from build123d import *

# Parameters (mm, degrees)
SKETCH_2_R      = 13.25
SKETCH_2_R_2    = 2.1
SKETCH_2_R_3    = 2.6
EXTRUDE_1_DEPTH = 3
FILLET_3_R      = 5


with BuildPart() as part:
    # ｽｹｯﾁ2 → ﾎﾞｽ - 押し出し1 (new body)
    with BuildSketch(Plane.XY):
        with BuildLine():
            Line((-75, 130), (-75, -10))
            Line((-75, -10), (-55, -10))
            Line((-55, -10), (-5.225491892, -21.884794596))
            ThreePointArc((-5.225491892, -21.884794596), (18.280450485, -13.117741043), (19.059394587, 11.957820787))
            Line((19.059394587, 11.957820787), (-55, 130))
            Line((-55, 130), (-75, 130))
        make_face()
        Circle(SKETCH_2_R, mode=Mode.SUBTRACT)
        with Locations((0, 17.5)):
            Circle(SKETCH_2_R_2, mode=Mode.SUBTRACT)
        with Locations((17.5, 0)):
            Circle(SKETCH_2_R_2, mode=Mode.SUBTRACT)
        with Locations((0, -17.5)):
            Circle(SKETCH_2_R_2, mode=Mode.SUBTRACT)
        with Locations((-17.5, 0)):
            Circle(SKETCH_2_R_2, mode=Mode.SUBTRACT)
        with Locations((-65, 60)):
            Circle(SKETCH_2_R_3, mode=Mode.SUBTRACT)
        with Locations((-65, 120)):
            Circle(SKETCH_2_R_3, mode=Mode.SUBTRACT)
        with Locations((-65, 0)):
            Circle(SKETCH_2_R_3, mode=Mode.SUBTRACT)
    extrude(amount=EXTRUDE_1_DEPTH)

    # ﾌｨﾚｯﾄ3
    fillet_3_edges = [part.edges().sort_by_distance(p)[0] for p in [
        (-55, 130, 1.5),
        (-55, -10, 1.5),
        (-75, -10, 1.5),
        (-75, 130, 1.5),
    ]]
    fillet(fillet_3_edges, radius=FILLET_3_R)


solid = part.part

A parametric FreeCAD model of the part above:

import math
import FreeCAD as App
import Part
import Sketcher

V = App.Vector


def edges_at(feature, points):
    """Names of the edges that pass closest to the given points."""
    edges = feature.Shape.Edges
    near = lambda p: min(range(len(edges)), key=lambda i: edges[i].distToShape(Part.Vertex(*p))[0])
    return sorted({f"Edge{near(p) + 1}" for p in points})

doc = App.newDocument("Part")
body = doc.addObject("PartDesign::Body", "Body")

# Sketch on XY plane
sketch1 = body.newObject("Sketcher::SketchObject", "Sketch")
sketch1.AttachmentSupport = (doc.getObject("XY_Plane"), [""])
sketch1.MapMode = "FlatFace"
sketch1.addGeometry([
    Part.LineSegment(V(-75, 130, 0), V(-75, -10, 0)),  # 0
    Part.LineSegment(V(-75, -10, 0), V(-55, -10, 0)),  # 1
    Part.LineSegment(V(-55, -10, 0), V(-5.225492, -21.884795, 0)),  # 2
    Part.ArcOfCircle(Part.Circle(V(0, 0, 0), V(0, 0, 1), 22.5), math.radians(-103.429226), math.radians(32.104066)),  # 3
    Part.LineSegment(V(19.059395, 11.957821, 0), V(-55, 130, 0)),  # 4
    Part.LineSegment(V(-55, 130, 0), V(-75, 130, 0)),  # 5
    Part.Circle(V(-65, 0, 0), V(0, 0, 1), 2.6),  # 6
    Part.Circle(V(-17.5, 0, 0), V(0, 0, 1), 2.1),  # 7
    Part.Circle(V(0, -17.5, 0), V(0, 0, 1), 2.1),  # 8
    Part.Circle(V(0, 0, 0), V(0, 0, 1), 13.25),  # 9
    Part.Circle(V(17.5, 0, 0), V(0, 0, 1), 2.1),  # 10
    Part.Circle(V(0, 17.5, 0), V(0, 0, 1), 2.1),  # 11
    Part.Circle(V(-65, 60, 0), V(0, 0, 1), 2.6),  # 12
    Part.Circle(V(-65, 120, 0), V(0, 0, 1), 2.6),  # 13
], False)
sketch1.addConstraint([
    Sketcher.Constraint("Coincident", 0, 2, 1, 1),
    Sketcher.Constraint("Coincident", 1, 2, 2, 1),
    Sketcher.Constraint("Tangent", 2, 2, 3, 1),
    Sketcher.Constraint("Tangent", 3, 2, 4, 1),
    Sketcher.Constraint("Coincident", 4, 2, 5, 1),
    Sketcher.Constraint("Coincident", 5, 2, 0, 1),
    Sketcher.Constraint("Vertical", 0),
    Sketcher.Constraint("Horizontal", 1),
    Sketcher.Constraint("Horizontal", 5),
    Sketcher.Constraint("Coincident", 3, 3, -1, 1),
    Sketcher.Constraint("Coincident", 9, 3, -1, 1),
    Sketcher.Constraint("Equal", 7, 8),
    Sketcher.Constraint("Equal", 8, 10),
    Sketcher.Constraint("Equal", 10, 11),
    Sketcher.Constraint("Equal", 6, 12),
    Sketcher.Constraint("Equal", 12, 13),
    Sketcher.Constraint("Symmetric", 7, 3, 10, 3, -1, 1),
    Sketcher.Constraint("Symmetric", 8, 3, 11, 3, -1, 1),
    Sketcher.Constraint("PointOnObject", 6, 3, -1),
    Sketcher.Constraint("PointOnObject", 7, 3, -1),
    Sketcher.Constraint("PointOnObject", 8, 3, -2),
    Sketcher.Constraint("Vertical", 6, 3, 12, 3),
    Sketcher.Constraint("Vertical", 12, 3, 13, 3),
    Sketcher.Constraint("Vertical", 1, 2, 4, 2),
    Sketcher.Constraint("Diameter", 6, 5.2),
    Sketcher.Constraint("Diameter", 7, 4.2),
    Sketcher.Constraint("Diameter", 9, 26.5),
    Sketcher.Constraint("Radius", 3, 22.5),
    Sketcher.Constraint("DistanceX", 1, 1, 1, 2, 20.0),
    Sketcher.Constraint("DistanceY", 0, 2, 0, 1, 140.0),
    Sketcher.Constraint("DistanceX", 6, 3, -1, 1, 65.0),
    Sketcher.Constraint("DistanceY", -1, 1, 12, 3, 60.0),
    Sketcher.Constraint("DistanceY", -1, 1, 13, 3, 120.0),
    Sketcher.Constraint("DistanceX", 0, 2, -1, 1, 75.0),
    Sketcher.Constraint("DistanceY", 0, 2, -1, 1, 10.0),
    Sketcher.Constraint("DistanceX", 7, 3, 10, 3, 35.0),
    Sketcher.Constraint("DistanceY", 8, 3, 11, 3, 35.0),
])
pad1 = body.newObject("PartDesign::Pad", "Pad")
pad1.Profile = sketch1
pad1.Length = 3
doc.recompute()

fillet = body.newObject("PartDesign::Fillet", "Fillet")
fillet.Base = (pad1, edges_at(pad1, [
    (-55, 130, 1.5),
    (-55, -10, 1.5),
    (-75, -10, 1.5),
    (-75, 130, 1.5),
]))
fillet.Radius = 5

doc.recompute()
